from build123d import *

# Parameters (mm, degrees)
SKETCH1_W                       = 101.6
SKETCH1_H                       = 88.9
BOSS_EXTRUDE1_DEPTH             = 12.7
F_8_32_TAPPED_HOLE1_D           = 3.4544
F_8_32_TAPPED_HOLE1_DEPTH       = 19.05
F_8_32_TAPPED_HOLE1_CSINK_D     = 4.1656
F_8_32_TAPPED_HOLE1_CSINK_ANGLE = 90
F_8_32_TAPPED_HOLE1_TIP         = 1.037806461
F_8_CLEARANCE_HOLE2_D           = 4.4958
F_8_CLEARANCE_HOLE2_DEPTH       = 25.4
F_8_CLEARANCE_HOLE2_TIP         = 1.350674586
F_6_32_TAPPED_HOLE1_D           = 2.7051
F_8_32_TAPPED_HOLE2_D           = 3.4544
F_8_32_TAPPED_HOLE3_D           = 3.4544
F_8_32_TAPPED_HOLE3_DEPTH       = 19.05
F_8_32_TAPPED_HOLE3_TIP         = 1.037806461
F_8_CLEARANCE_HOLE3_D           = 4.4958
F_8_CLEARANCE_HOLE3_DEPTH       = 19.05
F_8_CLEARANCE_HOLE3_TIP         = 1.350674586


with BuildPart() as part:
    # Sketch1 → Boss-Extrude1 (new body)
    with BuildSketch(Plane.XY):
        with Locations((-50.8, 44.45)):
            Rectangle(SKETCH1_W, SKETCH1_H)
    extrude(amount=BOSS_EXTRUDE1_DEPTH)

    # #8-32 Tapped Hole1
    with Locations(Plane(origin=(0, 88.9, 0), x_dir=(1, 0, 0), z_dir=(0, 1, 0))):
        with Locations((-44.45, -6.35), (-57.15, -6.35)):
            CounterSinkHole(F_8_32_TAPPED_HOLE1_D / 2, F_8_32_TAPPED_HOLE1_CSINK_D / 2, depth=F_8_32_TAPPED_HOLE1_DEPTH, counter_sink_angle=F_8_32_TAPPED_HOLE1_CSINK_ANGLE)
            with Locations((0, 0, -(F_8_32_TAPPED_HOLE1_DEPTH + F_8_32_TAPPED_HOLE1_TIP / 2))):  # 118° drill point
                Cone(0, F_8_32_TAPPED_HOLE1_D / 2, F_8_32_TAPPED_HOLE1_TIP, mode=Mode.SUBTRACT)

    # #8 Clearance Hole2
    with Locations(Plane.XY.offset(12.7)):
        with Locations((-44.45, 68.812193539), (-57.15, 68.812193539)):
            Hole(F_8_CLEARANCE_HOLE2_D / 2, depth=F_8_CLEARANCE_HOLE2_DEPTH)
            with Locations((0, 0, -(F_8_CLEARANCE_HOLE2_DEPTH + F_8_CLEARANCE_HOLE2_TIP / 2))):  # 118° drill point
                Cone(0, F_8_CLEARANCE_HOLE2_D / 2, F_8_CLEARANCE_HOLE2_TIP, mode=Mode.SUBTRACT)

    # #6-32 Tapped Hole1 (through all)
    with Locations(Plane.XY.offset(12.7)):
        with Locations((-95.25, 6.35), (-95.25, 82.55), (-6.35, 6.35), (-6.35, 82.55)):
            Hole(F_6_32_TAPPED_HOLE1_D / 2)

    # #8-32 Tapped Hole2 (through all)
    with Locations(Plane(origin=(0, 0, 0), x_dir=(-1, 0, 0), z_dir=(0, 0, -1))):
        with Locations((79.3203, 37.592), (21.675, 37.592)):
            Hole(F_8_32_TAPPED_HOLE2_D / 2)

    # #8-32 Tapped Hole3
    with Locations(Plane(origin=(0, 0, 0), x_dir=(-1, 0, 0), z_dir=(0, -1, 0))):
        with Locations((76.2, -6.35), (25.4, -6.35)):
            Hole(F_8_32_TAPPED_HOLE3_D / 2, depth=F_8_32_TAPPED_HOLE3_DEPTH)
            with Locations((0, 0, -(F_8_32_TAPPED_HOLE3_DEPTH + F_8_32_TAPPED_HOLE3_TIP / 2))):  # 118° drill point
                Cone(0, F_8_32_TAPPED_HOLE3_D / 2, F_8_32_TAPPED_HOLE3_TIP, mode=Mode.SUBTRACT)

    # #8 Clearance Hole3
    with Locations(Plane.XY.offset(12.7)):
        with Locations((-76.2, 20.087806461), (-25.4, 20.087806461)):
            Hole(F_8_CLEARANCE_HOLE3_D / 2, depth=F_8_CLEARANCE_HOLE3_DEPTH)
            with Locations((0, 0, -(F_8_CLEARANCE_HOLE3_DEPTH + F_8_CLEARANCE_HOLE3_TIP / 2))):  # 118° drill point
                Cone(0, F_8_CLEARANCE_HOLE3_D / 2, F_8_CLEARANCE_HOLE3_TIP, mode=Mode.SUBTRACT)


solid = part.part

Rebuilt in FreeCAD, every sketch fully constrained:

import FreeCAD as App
import Part
import Sketcher

V = App.Vector
Q = App.Units.Quantity

doc = App.newDocument("Part")
body = doc.addObject("PartDesign::Body", "Body")

# Sketch on XY plane
sketch1 = body.newObject("Sketcher::SketchObject", "Sketch")
sketch1.AttachmentSupport = (doc.getObject("XY_Plane"), [""])
sketch1.MapMode = "FlatFace"
sketch1.addGeometry(Part.LineSegment(V(-102, 89, 0), V(-102, 0, 0)), False)
sketch1.addGeometry(Part.LineSegment(V(-102, 0, 0), V(0, 0, 0)), False)
sketch1.addGeometry(Part.LineSegment(V(0, 0, 0), V(0, 89, 0)), False)
sketch1.addGeometry(Part.LineSegment(V(0, 89, 0), V(-102, 89, 0)), False)
sketch1.addConstraint(Sketcher.Constraint("Coincident", 0, 2, 1, 1))
sketch1.addConstraint(Sketcher.Constraint("Coincident", 1, 2, 2, 1))
sketch1.addConstraint(Sketcher.Constraint("Coincident", 2, 2, 3, 1))
sketch1.addConstraint(Sketcher.Constraint("Coincident", 3, 2, 0, 1))
sketch1.addConstraint(Sketcher.Constraint("Vertical", 0))
sketch1.addConstraint(Sketcher.Constraint("Horizontal", 1))
sketch1.addConstraint(Sketcher.Constraint("Vertical", 2))
sketch1.addConstraint(Sketcher.Constraint("Horizontal", 3))
sketch1.addConstraint(Sketcher.Constraint("Coincident", 1, 2, -1, 1))
sketch1.addConstraint(Sketcher.Constraint("DistanceX", 1, 1, 1, 2, Q("4 in")))
sketch1.addConstraint(Sketcher.Constraint("DistanceY", 0, 2, 0, 1, Q("3.5 in")))
pad1 = body.newObject("PartDesign::Pad", "Pad")
pad1.Profile = sketch1
pad1.Length = Q("0.5 in")

# Sketch on XZ plane
sketch2 = body.newObject("Sketcher::SketchObject", "Sketch001")
sketch2.AttachmentSupport = (doc.getObject("XZ_Plane"), [""])
sketch2.MapMode = "FlatFace"
sketch2.AttachmentOffset = App.Placement(V(0, 0, -3.5 * 25.4), App.Rotation())
sketch2.addGeometry(Part.Circle(V(-44.5, 6.3, 0), V(0, 0, 1), 1.7), False)
sketch2.addGeometry(Part.Circle(V(-57.1, 6.3, 0), V(0, 0, 1), 1.7), False)
sketch2.addConstraint(Sketcher.Constraint("Equal", 0, 1))
sketch2.addConstraint(Sketcher.Constraint("Horizontal", 0, 3, 1, 3))
sketch2.addConstraint(Sketcher.Constraint("Diameter", 0, Q("0.136 in")))
sketch2.addConstraint(Sketcher.Constraint("DistanceX", 1, 3, 0, 3, Q("0.5 in")))
sketch2.addConstraint(Sketcher.Constraint("DistanceX", 0, 3, -1, 1, Q("1.75 in")))
sketch2.addConstraint(Sketcher.Constraint("DistanceY", -1, 1, 0, 3, Q("0.25 in")))
doc.recompute()
hole = body.newObject("PartDesign::Hole", "Hole")
hole.Profile = sketch2
hole.ThreadType = "None"
hole.Diameter = Q("0.136 in")
hole.DepthType = "Dimension"
hole.Depth = Q("0.75 in")
hole.DrillPoint = "Angled"
hole.DrillPointAngle = 118
hole.HoleCutType = "Countersink"
hole.HoleCutDiameter = Q("0.164 in")
hole.HoleCutCountersinkAngle = 90
hole.Reversed = True

# Sketch on XY plane
sketch3 = body.newObject("Sketcher::SketchObject", "Sketch002")
sketch3.AttachmentSupport = (doc.getObject("XY_Plane"), [""])
sketch3.MapMode = "FlatFace"
sketch3.AttachmentOffset = App.Placement(V(0, 0, 0.5 * 25.4), App.Rotation())
sketch3.addGeometry(Part.Circle(V(-44.5, 68.8, 0), V(0, 0, 1), 2.2), False)
sketch3.addGeometry(Part.Circle(V(-57.1, 68.8, 0), V(0, 0, 1), 2.2), False)
sketch3.addConstraint(Sketcher.Constraint("Equal", 0, 1))
sketch3.addConstraint(Sketcher.Constraint("Horizontal", 0, 3, 1, 3))
sketch3.addConstraint(Sketcher.Constraint("Diameter", 0, Q("0.177 in")))
sketch3.addConstraint(Sketcher.Constraint("DistanceX", 1, 3, 0, 3, Q("0.5 in")))
sketch3.addConstraint(Sketcher.Constraint("DistanceX", 0, 3, -1, 1, Q("1.75 in")))
sketch3.addConstraint(Sketcher.Constraint("DistanceY", -1, 1, 0, 3, Q("68.812194 mm")))
doc.recompute()
hole2 = body.newObject("PartDesign::Hole", "Hole001")
hole2.Profile = sketch3
hole2.ThreadType = "None"
hole2.Diameter = Q("0.177 in")
hole2.DepthType = "Dimension"
hole2.Depth = Q("1 in")
hole2.DrillPoint = "Angled"
hole2.DrillPointAngle = 118

# Sketch on XY plane
sketch4 = body.newObject("Sketcher::SketchObject", "Sketch003")
sketch4.AttachmentSupport = (doc.getObject("XY_Plane"), [""])
sketch4.MapMode = "FlatFace"
sketch4.AttachmentOffset = App.Placement(V(0, 0, 0.5 * 25.4), App.Rotation())
sketch4.addGeometry(Part.Circle(V(-95.2, 6.3, 0), V(0, 0, 1), 1.4), False)
sketch4.addGeometry(Part.Circle(V(-95.2, 82.5, 0), V(0, 0, 1), 1.4), False)
sketch4.addGeometry(Part.Circle(V(-6.3, 6.3, 0), V(0, 0, 1), 1.4), False)
sketch4.addGeometry(Part.Circle(V(-6.3, 82.5, 0), V(0, 0, 1), 1.4), False)
sketch4.addConstraint(Sketcher.Constraint("Equal", 0, 1))
sketch4.addConstraint(Sketcher.Constraint("Equal", 1, 2))
sketch4.addConstraint(Sketcher.Constraint("Equal", 2, 3))
sketch4.addConstraint(Sketcher.Constraint("Horizontal", 0, 3, 2, 3))
sketch4.addConstraint(Sketcher.Constraint("Horizontal", 1, 3, 3, 3))
sketch4.addConstraint(Sketcher.Constraint("Vertical", 0, 3, 1, 3))
sketch4.addConstraint(Sketcher.Constraint("Vertical", 2, 3, 3, 3))
sketch4.addConstraint(Sketcher.Constraint("DistanceY", 0, 3, 1, 3, Q("3 in")))
sketch4.addConstraint(Sketcher.Constraint("Diameter", 0, Q("0.1065 in")))
sketch4.addConstraint(Sketcher.Constraint("DistanceX", 0, 3, 2, 3, Q("3.5 in")))
sketch4.addConstraint(Sketcher.Constraint("DistanceX", 0, 3, -1, 1, Q("3.75 in")))
sketch4.addConstraint(Sketcher.Constraint("DistanceY", -1, 1, 0, 3, Q("0.25 in")))
doc.recompute()
hole3 = body.newObject("PartDesign::Hole", "Hole002")
hole3.Profile = sketch4
hole3.ThreadType = "None"
hole3.Diameter = Q("0.1065 in")
hole3.DepthType = "ThroughAll"

# Sketch on XY plane
sketch5 = body.newObject("Sketcher::SketchObject", "Sketch004")
sketch5.AttachmentSupport = (doc.getObject("XY_Plane"), [""])
sketch5.MapMode = "FlatFace"
sketch5.addGeometry(Part.Circle(V(-79.3, 37.6, 0), V(0, 0, 1), 1.7), False)
sketch5.addGeometry(Part.Circle(V(-21.7, 37.6, 0), V(0, 0, 1), 1.7), False)
sketch5.addConstraint(Sketcher.Constraint("Equal", 0, 1))
sketch5.addConstraint(Sketcher.Constraint("Horizontal", 0, 3, 1, 3))
sketch5.addConstraint(Sketcher.Constraint("Diameter", 0, Q("0.136 in")))
sketch5.addConstraint(Sketcher.Constraint("DistanceY", -1, 1, 0, 3, Q("1.48 in")))
sketch5.addConstraint(Sketcher.Constraint("DistanceX", 0, 3, 1, 3, Q("2.2695 in")))
sketch5.addConstraint(Sketcher.Constraint("DistanceX", 0, 3, -1, 1, Q("79.3203 mm")))
doc.recompute()
hole4 = body.newObject("PartDesign::Hole", "Hole003")
hole4.Profile = sketch5
hole4.ThreadType = "None"
hole4.Diameter = Q("0.136 in")
hole4.DepthType = "ThroughAll"
hole4.Reversed = True

# Sketch on XZ plane
sketch6 = body.newObject("Sketcher::SketchObject", "Sketch005")
sketch6.AttachmentSupport = (doc.getObject("XZ_Plane"), [""])
sketch6.MapMode = "FlatFace"
sketch6.addGeometry(Part.Circle(V(-76.2, 6.3, 0), V(0, 0, 1), 1.7), False)
sketch6.addGeometry(Part.Circle(V(-25.4, 6.3, 0), V(0, 0, 1), 1.7), False)
sketch6.addConstraint(Sketcher.Constraint("Equal", 0, 1))
sketch6.addConstraint(Sketcher.Constraint("Horizontal", 0, 3, 1, 3))
sketch6.addConstraint(Sketcher.Constraint("Diameter", 0, Q("0.136 in")))
sketch6.addConstraint(Sketcher.Constraint("DistanceX", 0, 3, -1, 1, Q("3 in")))
sketch6.addConstraint(Sketcher.Constraint("DistanceX", 1, 3, -1, 1, Q("1 in")))
sketch6.addConstraint(Sketcher.Constraint("DistanceY", -1, 1, 0, 3, Q("0.25 in")))
doc.recompute()
hole5 = body.newObject("PartDesign::Hole", "Hole004")
hole5.Profile = sketch6
hole5.ThreadType = "None"
hole5.Diameter = Q("0.136 in")
hole5.DepthType = "Dimension"
hole5.Depth = Q("0.75 in")
hole5.DrillPoint = "Angled"
hole5.DrillPointAngle = 118

# Sketch on XY plane
sketch7 = body.newObject("Sketcher::SketchObject", "Sketch006")
sketch7.AttachmentSupport = (doc.getObject("XY_Plane"), [""])
sketch7.MapMode = "FlatFace"
sketch7.AttachmentOffset = App.Placement(V(0, 0, 0.5 * 25.4), App.Rotation())
sketch7.addGeometry(Part.Circle(V(-76.2, 20.1, 0), V(0, 0, 1), 2.2), False)
sketch7.addGeometry(Part.Circle(V(-25.4, 20.1, 0), V(0, 0, 1), 2.2), False)
sketch7.addConstraint(Sketcher.Constraint("Equal", 0, 1))
sketch7.addConstraint(Sketcher.Constraint("Horizontal", 0, 3, 1, 3))
sketch7.addConstraint(Sketcher.Constraint("Diameter", 0, Q("0.177 in")))
sketch7.addConstraint(Sketcher.Constraint("DistanceX", 0, 3, -1, 1, Q("3 in")))
sketch7.addConstraint(Sketcher.Constraint("DistanceX", 1, 3, -1, 1, Q("1 in")))
sketch7.addConstraint(Sketcher.Constraint("DistanceY", -1, 1, 0, 3, Q("20.087806 mm")))
doc.recompute()
hole6 = body.newObject("PartDesign::Hole", "Hole005")
hole6.Profile = sketch7
hole6.ThreadType = "None"
hole6.Diameter = Q("0.177 in")
hole6.DepthType = "Dimension"
hole6.Depth = Q("0.75 in")
hole6.DrillPoint = "Angled"
hole6.DrillPointAngle = 118

doc.recompute()
